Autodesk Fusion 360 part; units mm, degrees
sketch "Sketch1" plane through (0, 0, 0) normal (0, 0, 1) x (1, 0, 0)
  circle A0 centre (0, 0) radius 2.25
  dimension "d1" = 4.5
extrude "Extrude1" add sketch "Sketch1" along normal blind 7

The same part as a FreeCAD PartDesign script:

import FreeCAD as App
import Part
import Sketcher

V = App.Vector

doc = App.newDocument("Part")
params = doc.addObject("Spreadsheet::Sheet", "Params")
for row, (alias, value) in enumerate([
    ("sketch1_diameter", "4.5 mm"),
    ("pad1_length", "7 mm"),
], start=1):
    params.set(f"A{row}", alias)
    params.set(f"B{row}", "=" + value)
    params.setAlias(f"B{row}", alias)

body = doc.addObject("PartDesign::Body", "Body")

# Sketch on XY plane
sketch1 = body.newObject("Sketcher::SketchObject", "Sketch")
sketch1.AttachmentSupport = (doc.getObject("XY_Plane"), [""])
sketch1.MapMode = "FlatFace"
sketch1.addGeometry(Part.Circle(V(0, 0, 0), V(0, 0, 1), 2.2), False)
sketch1.addConstraint([
    Sketcher.Constraint("Coincident", 0, 3, -1, 1),
    Sketcher.Constraint("Diameter", 0, 4.5),
])
sketch1.setExpression("Constraints[1]", "Params.sketch1_diameter")
pad1 = body.newObject("PartDesign::Pad", "Pad")
pad1.Profile = sketch1
pad1.setExpression("Length", "Params.pad1_length")

doc.recompute()
